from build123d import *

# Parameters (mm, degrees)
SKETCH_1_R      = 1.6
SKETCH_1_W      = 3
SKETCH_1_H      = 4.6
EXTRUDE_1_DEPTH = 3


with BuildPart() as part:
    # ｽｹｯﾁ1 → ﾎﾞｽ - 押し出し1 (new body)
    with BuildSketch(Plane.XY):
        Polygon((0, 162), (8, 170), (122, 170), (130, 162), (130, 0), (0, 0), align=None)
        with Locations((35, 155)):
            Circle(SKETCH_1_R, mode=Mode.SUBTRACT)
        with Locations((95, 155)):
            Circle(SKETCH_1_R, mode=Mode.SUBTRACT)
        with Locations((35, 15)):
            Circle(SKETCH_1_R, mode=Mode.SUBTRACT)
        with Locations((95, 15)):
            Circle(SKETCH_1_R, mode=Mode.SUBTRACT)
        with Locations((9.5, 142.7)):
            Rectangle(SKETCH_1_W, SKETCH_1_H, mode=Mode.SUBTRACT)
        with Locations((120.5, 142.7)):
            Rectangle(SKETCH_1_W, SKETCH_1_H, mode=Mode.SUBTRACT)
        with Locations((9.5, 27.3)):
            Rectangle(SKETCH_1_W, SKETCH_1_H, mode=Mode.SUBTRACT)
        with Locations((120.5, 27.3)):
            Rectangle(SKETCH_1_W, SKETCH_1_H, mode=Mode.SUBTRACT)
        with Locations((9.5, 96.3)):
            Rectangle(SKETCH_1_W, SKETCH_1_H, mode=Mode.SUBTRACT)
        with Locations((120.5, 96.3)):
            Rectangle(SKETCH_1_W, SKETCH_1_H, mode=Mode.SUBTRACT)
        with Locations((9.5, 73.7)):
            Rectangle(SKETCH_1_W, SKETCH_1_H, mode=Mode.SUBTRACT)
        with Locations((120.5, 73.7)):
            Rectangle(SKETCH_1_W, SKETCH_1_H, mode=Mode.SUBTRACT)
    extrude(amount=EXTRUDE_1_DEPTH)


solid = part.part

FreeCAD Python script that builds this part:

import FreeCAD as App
import Part
import Sketcher

V = App.Vector

doc = App.newDocument("Part")
body = doc.addObject("PartDesign::Body", "Body")

# Sketch on XY plane
sketch1 = doc.addObject("Sketcher::SketchObject", "Sketch")
body.addObject(sketch1)
sketch1.AttachmentSupport = (doc.XY_Plane, [""])
sketch1.MapMode = "FlatFace"
sketch1.addGeometry([
    Part.LineSegment(V(8, 170, 0), V(0, 162, 0)),  # 0
    Part.LineSegment(V(0, 162, 0), V(0, 0, 0)),  # 1
    Part.LineSegment(V(0, 0, 0), V(130, 0, 0)),  # 2
    Part.LineSegment(V(130, 0, 0), V(130, 162, 0)),  # 3
    Part.LineSegment(V(130, 162, 0), V(122, 170, 0)),  # 4
    Part.LineSegment(V(122, 170, 0), V(8, 170, 0)),  # 5
    Part.LineSegment(V(119, 25, 0), V(119, 29.6, 0)),  # 6
    Part.LineSegment(V(119, 29.6, 0), V(122, 29.6, 0)),  # 7
    Part.LineSegment(V(122, 29.6, 0), V(122, 25, 0)),  # 8
    Part.LineSegment(V(122, 25, 0), V(119, 25, 0)),  # 9
    Part.Circle(V(95, 15, 0), V(0, 0, 1), 1.6),  # 10
    Part.LineSegment(V(119, 71.4, 0), V(119, 76, 0)),  # 11
    Part.LineSegment(V(119, 76, 0), V(122, 76, 0)),  # 12
    Part.LineSegment(V(122, 76, 0), V(122, 71.4, 0)),  # 13
    Part.LineSegment(V(122, 71.4, 0), V(119, 71.4, 0)),  # 14
    Part.Circle(V(35, 15, 0), V(0, 0, 1), 1.6),  # 15
    Part.LineSegment(V(8, 25, 0), V(8, 29.6, 0)),  # 16
    Part.LineSegment(V(8, 29.6, 0), V(11, 29.6, 0)),  # 17
    Part.LineSegment(V(11, 29.6, 0), V(11, 25, 0)),  # 18
    Part.LineSegment(V(11, 25, 0), V(8, 25, 0)),  # 19
    Part.LineSegment(V(8, 71.4, 0), V(8, 76, 0)),  # 20
    Part.LineSegment(V(8, 76, 0), V(11, 76, 0)),  # 21
    Part.LineSegment(V(11, 76, 0), V(11, 71.4, 0)),  # 22
    Part.LineSegment(V(11, 71.4, 0), V(8, 71.4, 0)),  # 23
    Part.LineSegment(V(119, 94, 0), V(119, 98.6, 0)),  # 24
    Part.LineSegment(V(119, 98.6, 0), V(122, 98.6, 0)),  # 25
    Part.LineSegment(V(122, 98.6, 0), V(122, 94, 0)),  # 26
    Part.LineSegment(V(122, 94, 0), V(119, 94, 0)),  # 27
    Part.LineSegment(V(119, 140.4, 0), V(119, 145, 0)),  # 28
    Part.LineSegment(V(119, 145, 0), V(122, 145, 0)),  # 29
    Part.LineSegment(V(122, 145, 0), V(122, 140.4, 0)),  # 30
    Part.LineSegment(V(122, 140.4, 0), V(119, 140.4, 0)),  # 31
    Part.Circle(V(95, 155, 0), V(0, 0, 1), 1.6),  # 32
    Part.LineSegment(V(8, 94, 0), V(8, 98.6, 0)),  # 33
    Part.LineSegment(V(8, 98.6, 0), V(11, 98.6, 0)),  # 34
    Part.LineSegment(V(11, 98.6, 0), V(11, 94, 0)),  # 35
    Part.LineSegment(V(11, 94, 0), V(8, 94, 0)),  # 36
    Part.Circle(V(35, 155, 0), V(0, 0, 1), 1.6),  # 37
    Part.LineSegment(V(8, 140.4, 0), V(8, 145, 0)),  # 38
    Part.LineSegment(V(8, 145, 0), V(11, 145, 0)),  # 39
    Part.LineSegment(V(11, 145, 0), V(11, 140.4, 0)),  # 40
    Part.LineSegment(V(11, 140.4, 0), V(8, 140.4, 0)),  # 41
], False)
sketch1.addConstraint([
    Sketcher.Constraint("Coincident", 0, 2, 1, 1),
    Sketcher.Constraint("Coincident", 1, 2, 2, 1),
    Sketcher.Constraint("Coincident", 2, 2, 3, 1),
    Sketcher.Constraint("Coincident", 3, 2, 4, 1),
    Sketcher.Constraint("Coincident", 4, 2, 5, 1),
    Sketcher.Constraint("Coincident", 5, 2, 0, 1),
    Sketcher.Constraint("Coincident", 6, 2, 7, 1),
    Sketcher.Constraint("Coincident", 7, 2, 8, 1),
    Sketcher.Constraint("Coincident", 8, 2, 9, 1),
    Sketcher.Constraint("Coincident", 9, 2, 6, 1),
    Sketcher.Constraint("Coincident", 11, 2, 12, 1),
    Sketcher.Constraint("Coincident", 12, 2, 13, 1),
    Sketcher.Constraint("Coincident", 13, 2, 14, 1),
    Sketcher.Constraint("Coincident", 14, 2, 11, 1),
    Sketcher.Constraint("Coincident", 16, 2, 17, 1),
    Sketcher.Constraint("Coincident", 17, 2, 18, 1),
    Sketcher.Constraint("Coincident", 18, 2, 19, 1),
    Sketcher.Constraint("Coincident", 19, 2, 16, 1),
    Sketcher.Constraint("Coincident", 20, 2, 21, 1),
    Sketcher.Constraint("Coincident", 21, 2, 22, 1),
    Sketcher.Constraint("Coincident", 22, 2, 23, 1),
    Sketcher.Constraint("Coincident", 23, 2, 20, 1),
    Sketcher.Constraint("Coincident", 24, 2, 25, 1),
    Sketcher.Constraint("Coincident", 25, 2, 26, 1),
    Sketcher.Constraint("Coincident", 26, 2, 27, 1),
    Sketcher.Constraint("Coincident", 27, 2, 24, 1),
    Sketcher.Constraint("Coincident", 28, 2, 29, 1),
    Sketcher.Constraint("Coincident", 29, 2, 30, 1),
    Sketcher.Constraint("Coincident", 30, 2, 31, 1),
    Sketcher.Constraint("Coincident", 31, 2, 28, 1),
    Sketcher.Constraint("Coincident", 33, 2, 34, 1),
    Sketcher.Constraint("Coincident", 34, 2, 35, 1),
    Sketcher.Constraint("Coincident", 35, 2, 36, 1),
    Sketcher.Constraint("Coincident", 36, 2, 33, 1),
    Sketcher.Constraint("Coincident", 38, 2, 39, 1),
    Sketcher.Constraint("Coincident", 39, 2, 40, 1),
    Sketcher.Constraint("Coincident", 40, 2, 41, 1),
    Sketcher.Constraint("Coincident", 41, 2, 38, 1),
    Sketcher.Constraint("Vertical", 1),
    Sketcher.Constraint("Horizontal", 2),
    Sketcher.Constraint("Vertical", 3),
    Sketcher.Constraint("Horizontal", 5),
    Sketcher.Constraint("Vertical", 6),
    Sketcher.Constraint("Horizontal", 7),
    Sketcher.Constraint("Vertical", 8),
    Sketcher.Constraint("Horizontal", 9),
    Sketcher.Constraint("Vertical", 11),
    Sketcher.Constraint("Horizontal", 12),
    Sketcher.Constraint("Vertical", 13),
    Sketcher.Constraint("Horizontal", 14),
    Sketcher.Constraint("Vertical", 16),
    Sketcher.Constraint("Horizontal", 17),
    Sketcher.Constraint("Vertical", 18),
    Sketcher.Constraint("Horizontal", 19),
    Sketcher.Constraint("Vertical", 20),
    Sketcher.Constraint("Horizontal", 21),
    Sketcher.Constraint("Vertical", 22),
    Sketcher.Constraint("Horizontal", 23),
    Sketcher.Constraint("Vertical", 24),
    Sketcher.Constraint("Horizontal", 25),
    Sketcher.Constraint("Vertical", 26),
    Sketcher.Constraint("Horizontal", 27),
    Sketcher.Constraint("Vertical", 28),
    Sketcher.Constraint("Horizontal", 29),
    Sketcher.Constraint("Vertical", 30),
    Sketcher.Constraint("Horizontal", 31),
    Sketcher.Constraint("Vertical", 33),
    Sketcher.Constraint("Horizontal", 34),
    Sketcher.Constraint("Vertical", 35),
    Sketcher.Constraint("Horizontal", 36),
    Sketcher.Constraint("Vertical", 38),
    Sketcher.Constraint("Horizontal", 39),
    Sketcher.Constraint("Vertical", 40),
    Sketcher.Constraint("Horizontal", 41),
    Sketcher.Constraint("Coincident", 1, 2, -1, 1),
    Sketcher.Constraint("Equal", 10, 15),
    Sketcher.Constraint("Equal", 15, 32),
    Sketcher.Constraint("Equal", 32, 37),
    Sketcher.Constraint("Perpendicular", 0, 4),
    Sketcher.Constraint("Horizontal", 10, 3, 15, 3),
    Sketcher.Constraint("Horizontal", 32, 3, 37, 3),
    Sketcher.Constraint("Horizontal", 0, 2, 3, 2),
    Sketcher.Constraint("Horizontal", 7, 2, 16, 2),
    Sketcher.Constraint("Horizontal", 9, 2, 18, 2),
    Sketcher.Constraint("Horizontal", 12, 2, 20, 2),
    Sketcher.Constraint("Horizontal", 14, 2, 22, 2),
    Sketcher.Constraint("Horizontal", 25, 2, 33, 2),
    Sketcher.Constraint("Horizontal", 27, 2, 35, 2),
    Sketcher.Constraint("Horizontal", 29, 2, 38, 2),
    Sketcher.Constraint("Horizontal", 31, 2, 40, 2),
    Sketcher.Constraint("Vertical", 10, 3, 32, 3),
    Sketcher.Constraint("Vertical", 15, 3, 37, 3),
    Sketcher.Constraint("Vertical", 4, 2, 7, 2),
    Sketcher.Constraint("Vertical", 9, 2, 11, 2),
    Sketcher.Constraint("Vertical", 8, 2, 12, 2),
    Sketcher.Constraint("Vertical", 5, 2, 16, 2),
    Sketcher.Constraint("Vertical", 19, 2, 20, 2),
    Sketcher.Constraint("Vertical", 18, 2, 21, 2),
    Sketcher.Constraint("Vertical", 14, 2, 24, 2),
    Sketcher.Constraint("Vertical", 13, 2, 25, 2),
    Sketcher.Constraint("Vertical", 27, 2, 28, 2),
    Sketcher.Constraint("Vertical", 26, 2, 29, 2),
    Sketcher.Constraint("Vertical", 23, 2, 33, 2),
    Sketcher.Constraint("Vertical", 22, 2, 34, 2),
    Sketcher.Constraint("Vertical", 36, 2, 38, 2),
    Sketcher.Constraint("Vertical", 35, 2, 39, 2),
    Sketcher.Constraint("Equal", 14, 17),
    Sketcher.Constraint("Equal", 8, 11),
    Sketcher.Constraint("Equal", 22, 24),
    Sketcher.Constraint("Equal", 26, 28),
    Sketcher.Constraint("Equal", 0, 4),
    Sketcher.Constraint("Diameter", 10, 3.2),
    Sketcher.Constraint("DistanceX", 2, 1, 2, 2, 130.0),
    Sketcher.Constraint("DistanceX", 5, 2, 5, 1, 114.0),
    Sketcher.Constraint("DistanceX", 7, 1, 7, 2, 3.0),
    Sketcher.Constraint("DistanceY", 1, 2, 1, 1, 162.0),
    Sketcher.Constraint("DistanceY", 6, 1, 6, 2, 4.6),
    Sketcher.Constraint("DistanceX", -1, 1, 10, 3, 95.0),
    Sketcher.Constraint("DistanceY", -1, 1, 10, 3, 15.0),
    Sketcher.Constraint("DistanceX", -1, 1, 15, 3, 35.0),
    Sketcher.Constraint("DistanceY", -1, 1, 32, 3, 155.0),
    Sketcher.Constraint("DistanceY", -1, 1, 8, 2, 25.0),
    Sketcher.Constraint("DistanceY", -1, 1, 11, 2, 76.0),
    Sketcher.Constraint("DistanceY", -1, 1, 26, 2, 94.0),
    Sketcher.Constraint("DistanceY", -1, 1, 28, 2, 145.0),
])
pad1 = doc.addObject("PartDesign::Pad", "Pad")
body.addObject(pad1)
pad1.Profile = sketch1
pad1.Length = 3

doc.recompute()
